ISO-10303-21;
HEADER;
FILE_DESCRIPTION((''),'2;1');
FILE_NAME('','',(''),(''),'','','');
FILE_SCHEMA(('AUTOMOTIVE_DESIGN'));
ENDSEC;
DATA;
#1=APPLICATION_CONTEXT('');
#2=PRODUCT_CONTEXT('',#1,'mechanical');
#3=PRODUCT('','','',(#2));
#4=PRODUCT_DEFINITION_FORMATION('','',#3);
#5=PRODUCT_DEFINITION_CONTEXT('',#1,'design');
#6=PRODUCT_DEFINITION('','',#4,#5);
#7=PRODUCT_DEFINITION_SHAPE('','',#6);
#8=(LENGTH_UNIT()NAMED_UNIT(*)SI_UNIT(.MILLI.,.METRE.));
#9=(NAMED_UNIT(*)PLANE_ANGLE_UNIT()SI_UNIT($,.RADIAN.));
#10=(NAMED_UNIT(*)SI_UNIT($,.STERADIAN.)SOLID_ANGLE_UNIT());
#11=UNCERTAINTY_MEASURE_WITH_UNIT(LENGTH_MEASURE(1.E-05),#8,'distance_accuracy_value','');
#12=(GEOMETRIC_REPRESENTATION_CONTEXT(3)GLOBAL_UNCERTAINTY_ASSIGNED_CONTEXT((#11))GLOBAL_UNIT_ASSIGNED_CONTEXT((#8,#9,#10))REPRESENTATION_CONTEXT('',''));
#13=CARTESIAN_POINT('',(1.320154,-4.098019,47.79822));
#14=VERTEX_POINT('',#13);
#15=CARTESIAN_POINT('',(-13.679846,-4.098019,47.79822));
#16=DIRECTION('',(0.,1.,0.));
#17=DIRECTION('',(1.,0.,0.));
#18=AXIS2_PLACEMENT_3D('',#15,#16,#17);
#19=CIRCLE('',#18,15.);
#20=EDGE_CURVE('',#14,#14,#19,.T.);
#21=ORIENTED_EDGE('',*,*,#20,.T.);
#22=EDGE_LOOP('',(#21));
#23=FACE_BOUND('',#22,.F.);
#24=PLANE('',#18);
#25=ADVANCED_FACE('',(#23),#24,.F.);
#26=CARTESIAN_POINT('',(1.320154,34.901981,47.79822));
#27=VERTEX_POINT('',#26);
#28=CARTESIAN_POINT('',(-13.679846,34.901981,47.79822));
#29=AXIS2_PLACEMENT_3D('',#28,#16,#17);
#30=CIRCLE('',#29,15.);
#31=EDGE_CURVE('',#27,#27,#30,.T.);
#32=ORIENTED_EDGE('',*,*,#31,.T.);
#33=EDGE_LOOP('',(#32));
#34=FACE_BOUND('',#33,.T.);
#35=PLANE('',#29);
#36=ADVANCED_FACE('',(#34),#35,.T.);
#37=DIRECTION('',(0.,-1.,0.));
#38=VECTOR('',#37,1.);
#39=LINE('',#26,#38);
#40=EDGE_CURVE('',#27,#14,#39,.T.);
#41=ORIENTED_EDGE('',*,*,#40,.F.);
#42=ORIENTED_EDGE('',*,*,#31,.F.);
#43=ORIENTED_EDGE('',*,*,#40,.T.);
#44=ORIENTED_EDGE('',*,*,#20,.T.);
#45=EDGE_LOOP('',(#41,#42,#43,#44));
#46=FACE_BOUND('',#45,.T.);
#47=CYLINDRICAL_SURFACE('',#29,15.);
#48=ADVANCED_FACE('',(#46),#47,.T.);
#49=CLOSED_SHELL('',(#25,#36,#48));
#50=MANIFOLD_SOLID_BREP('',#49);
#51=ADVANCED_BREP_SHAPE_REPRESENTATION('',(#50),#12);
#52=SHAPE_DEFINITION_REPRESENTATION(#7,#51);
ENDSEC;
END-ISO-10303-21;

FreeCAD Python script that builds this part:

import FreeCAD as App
import Part
import Sketcher
from FreeCAD import Vector
Q = App.Units.Quantity

doc = App.newDocument("Part")
body = doc.addObject("PartDesign::Body", "Body")

# Sketch on XZ plane
sketch1 = body.newObject("Sketcher::SketchObject", "Sketch")
sketch1.AttachmentSupport = (doc.getObject("XZ_Plane"), [""])
sketch1.MapMode = "FlatFace"
sketch1.AttachmentOffset = App.Placement(Vector(0, 0, -34.901981), App.Rotation())
sketch1.addGeometry(Part.Circle(Vector(-14, 48, 0), Vector(0, 0, 1), 15), False)
sketch1.addConstraint([
    Sketcher.Constraint("Diameter", 0, Q("30 mm")),
    Sketcher.Constraint("DistanceY", -1, 1, 0, 3, Q("47.79822 mm")),
    Sketcher.Constraint("DistanceX", 0, 3, -1, 1, Q("13.679846 mm")),
])
pad1 = body.newObject("PartDesign::Pad", "Pad")
pad1.Profile = sketch1
pad1.Length = 39

doc.recompute()
